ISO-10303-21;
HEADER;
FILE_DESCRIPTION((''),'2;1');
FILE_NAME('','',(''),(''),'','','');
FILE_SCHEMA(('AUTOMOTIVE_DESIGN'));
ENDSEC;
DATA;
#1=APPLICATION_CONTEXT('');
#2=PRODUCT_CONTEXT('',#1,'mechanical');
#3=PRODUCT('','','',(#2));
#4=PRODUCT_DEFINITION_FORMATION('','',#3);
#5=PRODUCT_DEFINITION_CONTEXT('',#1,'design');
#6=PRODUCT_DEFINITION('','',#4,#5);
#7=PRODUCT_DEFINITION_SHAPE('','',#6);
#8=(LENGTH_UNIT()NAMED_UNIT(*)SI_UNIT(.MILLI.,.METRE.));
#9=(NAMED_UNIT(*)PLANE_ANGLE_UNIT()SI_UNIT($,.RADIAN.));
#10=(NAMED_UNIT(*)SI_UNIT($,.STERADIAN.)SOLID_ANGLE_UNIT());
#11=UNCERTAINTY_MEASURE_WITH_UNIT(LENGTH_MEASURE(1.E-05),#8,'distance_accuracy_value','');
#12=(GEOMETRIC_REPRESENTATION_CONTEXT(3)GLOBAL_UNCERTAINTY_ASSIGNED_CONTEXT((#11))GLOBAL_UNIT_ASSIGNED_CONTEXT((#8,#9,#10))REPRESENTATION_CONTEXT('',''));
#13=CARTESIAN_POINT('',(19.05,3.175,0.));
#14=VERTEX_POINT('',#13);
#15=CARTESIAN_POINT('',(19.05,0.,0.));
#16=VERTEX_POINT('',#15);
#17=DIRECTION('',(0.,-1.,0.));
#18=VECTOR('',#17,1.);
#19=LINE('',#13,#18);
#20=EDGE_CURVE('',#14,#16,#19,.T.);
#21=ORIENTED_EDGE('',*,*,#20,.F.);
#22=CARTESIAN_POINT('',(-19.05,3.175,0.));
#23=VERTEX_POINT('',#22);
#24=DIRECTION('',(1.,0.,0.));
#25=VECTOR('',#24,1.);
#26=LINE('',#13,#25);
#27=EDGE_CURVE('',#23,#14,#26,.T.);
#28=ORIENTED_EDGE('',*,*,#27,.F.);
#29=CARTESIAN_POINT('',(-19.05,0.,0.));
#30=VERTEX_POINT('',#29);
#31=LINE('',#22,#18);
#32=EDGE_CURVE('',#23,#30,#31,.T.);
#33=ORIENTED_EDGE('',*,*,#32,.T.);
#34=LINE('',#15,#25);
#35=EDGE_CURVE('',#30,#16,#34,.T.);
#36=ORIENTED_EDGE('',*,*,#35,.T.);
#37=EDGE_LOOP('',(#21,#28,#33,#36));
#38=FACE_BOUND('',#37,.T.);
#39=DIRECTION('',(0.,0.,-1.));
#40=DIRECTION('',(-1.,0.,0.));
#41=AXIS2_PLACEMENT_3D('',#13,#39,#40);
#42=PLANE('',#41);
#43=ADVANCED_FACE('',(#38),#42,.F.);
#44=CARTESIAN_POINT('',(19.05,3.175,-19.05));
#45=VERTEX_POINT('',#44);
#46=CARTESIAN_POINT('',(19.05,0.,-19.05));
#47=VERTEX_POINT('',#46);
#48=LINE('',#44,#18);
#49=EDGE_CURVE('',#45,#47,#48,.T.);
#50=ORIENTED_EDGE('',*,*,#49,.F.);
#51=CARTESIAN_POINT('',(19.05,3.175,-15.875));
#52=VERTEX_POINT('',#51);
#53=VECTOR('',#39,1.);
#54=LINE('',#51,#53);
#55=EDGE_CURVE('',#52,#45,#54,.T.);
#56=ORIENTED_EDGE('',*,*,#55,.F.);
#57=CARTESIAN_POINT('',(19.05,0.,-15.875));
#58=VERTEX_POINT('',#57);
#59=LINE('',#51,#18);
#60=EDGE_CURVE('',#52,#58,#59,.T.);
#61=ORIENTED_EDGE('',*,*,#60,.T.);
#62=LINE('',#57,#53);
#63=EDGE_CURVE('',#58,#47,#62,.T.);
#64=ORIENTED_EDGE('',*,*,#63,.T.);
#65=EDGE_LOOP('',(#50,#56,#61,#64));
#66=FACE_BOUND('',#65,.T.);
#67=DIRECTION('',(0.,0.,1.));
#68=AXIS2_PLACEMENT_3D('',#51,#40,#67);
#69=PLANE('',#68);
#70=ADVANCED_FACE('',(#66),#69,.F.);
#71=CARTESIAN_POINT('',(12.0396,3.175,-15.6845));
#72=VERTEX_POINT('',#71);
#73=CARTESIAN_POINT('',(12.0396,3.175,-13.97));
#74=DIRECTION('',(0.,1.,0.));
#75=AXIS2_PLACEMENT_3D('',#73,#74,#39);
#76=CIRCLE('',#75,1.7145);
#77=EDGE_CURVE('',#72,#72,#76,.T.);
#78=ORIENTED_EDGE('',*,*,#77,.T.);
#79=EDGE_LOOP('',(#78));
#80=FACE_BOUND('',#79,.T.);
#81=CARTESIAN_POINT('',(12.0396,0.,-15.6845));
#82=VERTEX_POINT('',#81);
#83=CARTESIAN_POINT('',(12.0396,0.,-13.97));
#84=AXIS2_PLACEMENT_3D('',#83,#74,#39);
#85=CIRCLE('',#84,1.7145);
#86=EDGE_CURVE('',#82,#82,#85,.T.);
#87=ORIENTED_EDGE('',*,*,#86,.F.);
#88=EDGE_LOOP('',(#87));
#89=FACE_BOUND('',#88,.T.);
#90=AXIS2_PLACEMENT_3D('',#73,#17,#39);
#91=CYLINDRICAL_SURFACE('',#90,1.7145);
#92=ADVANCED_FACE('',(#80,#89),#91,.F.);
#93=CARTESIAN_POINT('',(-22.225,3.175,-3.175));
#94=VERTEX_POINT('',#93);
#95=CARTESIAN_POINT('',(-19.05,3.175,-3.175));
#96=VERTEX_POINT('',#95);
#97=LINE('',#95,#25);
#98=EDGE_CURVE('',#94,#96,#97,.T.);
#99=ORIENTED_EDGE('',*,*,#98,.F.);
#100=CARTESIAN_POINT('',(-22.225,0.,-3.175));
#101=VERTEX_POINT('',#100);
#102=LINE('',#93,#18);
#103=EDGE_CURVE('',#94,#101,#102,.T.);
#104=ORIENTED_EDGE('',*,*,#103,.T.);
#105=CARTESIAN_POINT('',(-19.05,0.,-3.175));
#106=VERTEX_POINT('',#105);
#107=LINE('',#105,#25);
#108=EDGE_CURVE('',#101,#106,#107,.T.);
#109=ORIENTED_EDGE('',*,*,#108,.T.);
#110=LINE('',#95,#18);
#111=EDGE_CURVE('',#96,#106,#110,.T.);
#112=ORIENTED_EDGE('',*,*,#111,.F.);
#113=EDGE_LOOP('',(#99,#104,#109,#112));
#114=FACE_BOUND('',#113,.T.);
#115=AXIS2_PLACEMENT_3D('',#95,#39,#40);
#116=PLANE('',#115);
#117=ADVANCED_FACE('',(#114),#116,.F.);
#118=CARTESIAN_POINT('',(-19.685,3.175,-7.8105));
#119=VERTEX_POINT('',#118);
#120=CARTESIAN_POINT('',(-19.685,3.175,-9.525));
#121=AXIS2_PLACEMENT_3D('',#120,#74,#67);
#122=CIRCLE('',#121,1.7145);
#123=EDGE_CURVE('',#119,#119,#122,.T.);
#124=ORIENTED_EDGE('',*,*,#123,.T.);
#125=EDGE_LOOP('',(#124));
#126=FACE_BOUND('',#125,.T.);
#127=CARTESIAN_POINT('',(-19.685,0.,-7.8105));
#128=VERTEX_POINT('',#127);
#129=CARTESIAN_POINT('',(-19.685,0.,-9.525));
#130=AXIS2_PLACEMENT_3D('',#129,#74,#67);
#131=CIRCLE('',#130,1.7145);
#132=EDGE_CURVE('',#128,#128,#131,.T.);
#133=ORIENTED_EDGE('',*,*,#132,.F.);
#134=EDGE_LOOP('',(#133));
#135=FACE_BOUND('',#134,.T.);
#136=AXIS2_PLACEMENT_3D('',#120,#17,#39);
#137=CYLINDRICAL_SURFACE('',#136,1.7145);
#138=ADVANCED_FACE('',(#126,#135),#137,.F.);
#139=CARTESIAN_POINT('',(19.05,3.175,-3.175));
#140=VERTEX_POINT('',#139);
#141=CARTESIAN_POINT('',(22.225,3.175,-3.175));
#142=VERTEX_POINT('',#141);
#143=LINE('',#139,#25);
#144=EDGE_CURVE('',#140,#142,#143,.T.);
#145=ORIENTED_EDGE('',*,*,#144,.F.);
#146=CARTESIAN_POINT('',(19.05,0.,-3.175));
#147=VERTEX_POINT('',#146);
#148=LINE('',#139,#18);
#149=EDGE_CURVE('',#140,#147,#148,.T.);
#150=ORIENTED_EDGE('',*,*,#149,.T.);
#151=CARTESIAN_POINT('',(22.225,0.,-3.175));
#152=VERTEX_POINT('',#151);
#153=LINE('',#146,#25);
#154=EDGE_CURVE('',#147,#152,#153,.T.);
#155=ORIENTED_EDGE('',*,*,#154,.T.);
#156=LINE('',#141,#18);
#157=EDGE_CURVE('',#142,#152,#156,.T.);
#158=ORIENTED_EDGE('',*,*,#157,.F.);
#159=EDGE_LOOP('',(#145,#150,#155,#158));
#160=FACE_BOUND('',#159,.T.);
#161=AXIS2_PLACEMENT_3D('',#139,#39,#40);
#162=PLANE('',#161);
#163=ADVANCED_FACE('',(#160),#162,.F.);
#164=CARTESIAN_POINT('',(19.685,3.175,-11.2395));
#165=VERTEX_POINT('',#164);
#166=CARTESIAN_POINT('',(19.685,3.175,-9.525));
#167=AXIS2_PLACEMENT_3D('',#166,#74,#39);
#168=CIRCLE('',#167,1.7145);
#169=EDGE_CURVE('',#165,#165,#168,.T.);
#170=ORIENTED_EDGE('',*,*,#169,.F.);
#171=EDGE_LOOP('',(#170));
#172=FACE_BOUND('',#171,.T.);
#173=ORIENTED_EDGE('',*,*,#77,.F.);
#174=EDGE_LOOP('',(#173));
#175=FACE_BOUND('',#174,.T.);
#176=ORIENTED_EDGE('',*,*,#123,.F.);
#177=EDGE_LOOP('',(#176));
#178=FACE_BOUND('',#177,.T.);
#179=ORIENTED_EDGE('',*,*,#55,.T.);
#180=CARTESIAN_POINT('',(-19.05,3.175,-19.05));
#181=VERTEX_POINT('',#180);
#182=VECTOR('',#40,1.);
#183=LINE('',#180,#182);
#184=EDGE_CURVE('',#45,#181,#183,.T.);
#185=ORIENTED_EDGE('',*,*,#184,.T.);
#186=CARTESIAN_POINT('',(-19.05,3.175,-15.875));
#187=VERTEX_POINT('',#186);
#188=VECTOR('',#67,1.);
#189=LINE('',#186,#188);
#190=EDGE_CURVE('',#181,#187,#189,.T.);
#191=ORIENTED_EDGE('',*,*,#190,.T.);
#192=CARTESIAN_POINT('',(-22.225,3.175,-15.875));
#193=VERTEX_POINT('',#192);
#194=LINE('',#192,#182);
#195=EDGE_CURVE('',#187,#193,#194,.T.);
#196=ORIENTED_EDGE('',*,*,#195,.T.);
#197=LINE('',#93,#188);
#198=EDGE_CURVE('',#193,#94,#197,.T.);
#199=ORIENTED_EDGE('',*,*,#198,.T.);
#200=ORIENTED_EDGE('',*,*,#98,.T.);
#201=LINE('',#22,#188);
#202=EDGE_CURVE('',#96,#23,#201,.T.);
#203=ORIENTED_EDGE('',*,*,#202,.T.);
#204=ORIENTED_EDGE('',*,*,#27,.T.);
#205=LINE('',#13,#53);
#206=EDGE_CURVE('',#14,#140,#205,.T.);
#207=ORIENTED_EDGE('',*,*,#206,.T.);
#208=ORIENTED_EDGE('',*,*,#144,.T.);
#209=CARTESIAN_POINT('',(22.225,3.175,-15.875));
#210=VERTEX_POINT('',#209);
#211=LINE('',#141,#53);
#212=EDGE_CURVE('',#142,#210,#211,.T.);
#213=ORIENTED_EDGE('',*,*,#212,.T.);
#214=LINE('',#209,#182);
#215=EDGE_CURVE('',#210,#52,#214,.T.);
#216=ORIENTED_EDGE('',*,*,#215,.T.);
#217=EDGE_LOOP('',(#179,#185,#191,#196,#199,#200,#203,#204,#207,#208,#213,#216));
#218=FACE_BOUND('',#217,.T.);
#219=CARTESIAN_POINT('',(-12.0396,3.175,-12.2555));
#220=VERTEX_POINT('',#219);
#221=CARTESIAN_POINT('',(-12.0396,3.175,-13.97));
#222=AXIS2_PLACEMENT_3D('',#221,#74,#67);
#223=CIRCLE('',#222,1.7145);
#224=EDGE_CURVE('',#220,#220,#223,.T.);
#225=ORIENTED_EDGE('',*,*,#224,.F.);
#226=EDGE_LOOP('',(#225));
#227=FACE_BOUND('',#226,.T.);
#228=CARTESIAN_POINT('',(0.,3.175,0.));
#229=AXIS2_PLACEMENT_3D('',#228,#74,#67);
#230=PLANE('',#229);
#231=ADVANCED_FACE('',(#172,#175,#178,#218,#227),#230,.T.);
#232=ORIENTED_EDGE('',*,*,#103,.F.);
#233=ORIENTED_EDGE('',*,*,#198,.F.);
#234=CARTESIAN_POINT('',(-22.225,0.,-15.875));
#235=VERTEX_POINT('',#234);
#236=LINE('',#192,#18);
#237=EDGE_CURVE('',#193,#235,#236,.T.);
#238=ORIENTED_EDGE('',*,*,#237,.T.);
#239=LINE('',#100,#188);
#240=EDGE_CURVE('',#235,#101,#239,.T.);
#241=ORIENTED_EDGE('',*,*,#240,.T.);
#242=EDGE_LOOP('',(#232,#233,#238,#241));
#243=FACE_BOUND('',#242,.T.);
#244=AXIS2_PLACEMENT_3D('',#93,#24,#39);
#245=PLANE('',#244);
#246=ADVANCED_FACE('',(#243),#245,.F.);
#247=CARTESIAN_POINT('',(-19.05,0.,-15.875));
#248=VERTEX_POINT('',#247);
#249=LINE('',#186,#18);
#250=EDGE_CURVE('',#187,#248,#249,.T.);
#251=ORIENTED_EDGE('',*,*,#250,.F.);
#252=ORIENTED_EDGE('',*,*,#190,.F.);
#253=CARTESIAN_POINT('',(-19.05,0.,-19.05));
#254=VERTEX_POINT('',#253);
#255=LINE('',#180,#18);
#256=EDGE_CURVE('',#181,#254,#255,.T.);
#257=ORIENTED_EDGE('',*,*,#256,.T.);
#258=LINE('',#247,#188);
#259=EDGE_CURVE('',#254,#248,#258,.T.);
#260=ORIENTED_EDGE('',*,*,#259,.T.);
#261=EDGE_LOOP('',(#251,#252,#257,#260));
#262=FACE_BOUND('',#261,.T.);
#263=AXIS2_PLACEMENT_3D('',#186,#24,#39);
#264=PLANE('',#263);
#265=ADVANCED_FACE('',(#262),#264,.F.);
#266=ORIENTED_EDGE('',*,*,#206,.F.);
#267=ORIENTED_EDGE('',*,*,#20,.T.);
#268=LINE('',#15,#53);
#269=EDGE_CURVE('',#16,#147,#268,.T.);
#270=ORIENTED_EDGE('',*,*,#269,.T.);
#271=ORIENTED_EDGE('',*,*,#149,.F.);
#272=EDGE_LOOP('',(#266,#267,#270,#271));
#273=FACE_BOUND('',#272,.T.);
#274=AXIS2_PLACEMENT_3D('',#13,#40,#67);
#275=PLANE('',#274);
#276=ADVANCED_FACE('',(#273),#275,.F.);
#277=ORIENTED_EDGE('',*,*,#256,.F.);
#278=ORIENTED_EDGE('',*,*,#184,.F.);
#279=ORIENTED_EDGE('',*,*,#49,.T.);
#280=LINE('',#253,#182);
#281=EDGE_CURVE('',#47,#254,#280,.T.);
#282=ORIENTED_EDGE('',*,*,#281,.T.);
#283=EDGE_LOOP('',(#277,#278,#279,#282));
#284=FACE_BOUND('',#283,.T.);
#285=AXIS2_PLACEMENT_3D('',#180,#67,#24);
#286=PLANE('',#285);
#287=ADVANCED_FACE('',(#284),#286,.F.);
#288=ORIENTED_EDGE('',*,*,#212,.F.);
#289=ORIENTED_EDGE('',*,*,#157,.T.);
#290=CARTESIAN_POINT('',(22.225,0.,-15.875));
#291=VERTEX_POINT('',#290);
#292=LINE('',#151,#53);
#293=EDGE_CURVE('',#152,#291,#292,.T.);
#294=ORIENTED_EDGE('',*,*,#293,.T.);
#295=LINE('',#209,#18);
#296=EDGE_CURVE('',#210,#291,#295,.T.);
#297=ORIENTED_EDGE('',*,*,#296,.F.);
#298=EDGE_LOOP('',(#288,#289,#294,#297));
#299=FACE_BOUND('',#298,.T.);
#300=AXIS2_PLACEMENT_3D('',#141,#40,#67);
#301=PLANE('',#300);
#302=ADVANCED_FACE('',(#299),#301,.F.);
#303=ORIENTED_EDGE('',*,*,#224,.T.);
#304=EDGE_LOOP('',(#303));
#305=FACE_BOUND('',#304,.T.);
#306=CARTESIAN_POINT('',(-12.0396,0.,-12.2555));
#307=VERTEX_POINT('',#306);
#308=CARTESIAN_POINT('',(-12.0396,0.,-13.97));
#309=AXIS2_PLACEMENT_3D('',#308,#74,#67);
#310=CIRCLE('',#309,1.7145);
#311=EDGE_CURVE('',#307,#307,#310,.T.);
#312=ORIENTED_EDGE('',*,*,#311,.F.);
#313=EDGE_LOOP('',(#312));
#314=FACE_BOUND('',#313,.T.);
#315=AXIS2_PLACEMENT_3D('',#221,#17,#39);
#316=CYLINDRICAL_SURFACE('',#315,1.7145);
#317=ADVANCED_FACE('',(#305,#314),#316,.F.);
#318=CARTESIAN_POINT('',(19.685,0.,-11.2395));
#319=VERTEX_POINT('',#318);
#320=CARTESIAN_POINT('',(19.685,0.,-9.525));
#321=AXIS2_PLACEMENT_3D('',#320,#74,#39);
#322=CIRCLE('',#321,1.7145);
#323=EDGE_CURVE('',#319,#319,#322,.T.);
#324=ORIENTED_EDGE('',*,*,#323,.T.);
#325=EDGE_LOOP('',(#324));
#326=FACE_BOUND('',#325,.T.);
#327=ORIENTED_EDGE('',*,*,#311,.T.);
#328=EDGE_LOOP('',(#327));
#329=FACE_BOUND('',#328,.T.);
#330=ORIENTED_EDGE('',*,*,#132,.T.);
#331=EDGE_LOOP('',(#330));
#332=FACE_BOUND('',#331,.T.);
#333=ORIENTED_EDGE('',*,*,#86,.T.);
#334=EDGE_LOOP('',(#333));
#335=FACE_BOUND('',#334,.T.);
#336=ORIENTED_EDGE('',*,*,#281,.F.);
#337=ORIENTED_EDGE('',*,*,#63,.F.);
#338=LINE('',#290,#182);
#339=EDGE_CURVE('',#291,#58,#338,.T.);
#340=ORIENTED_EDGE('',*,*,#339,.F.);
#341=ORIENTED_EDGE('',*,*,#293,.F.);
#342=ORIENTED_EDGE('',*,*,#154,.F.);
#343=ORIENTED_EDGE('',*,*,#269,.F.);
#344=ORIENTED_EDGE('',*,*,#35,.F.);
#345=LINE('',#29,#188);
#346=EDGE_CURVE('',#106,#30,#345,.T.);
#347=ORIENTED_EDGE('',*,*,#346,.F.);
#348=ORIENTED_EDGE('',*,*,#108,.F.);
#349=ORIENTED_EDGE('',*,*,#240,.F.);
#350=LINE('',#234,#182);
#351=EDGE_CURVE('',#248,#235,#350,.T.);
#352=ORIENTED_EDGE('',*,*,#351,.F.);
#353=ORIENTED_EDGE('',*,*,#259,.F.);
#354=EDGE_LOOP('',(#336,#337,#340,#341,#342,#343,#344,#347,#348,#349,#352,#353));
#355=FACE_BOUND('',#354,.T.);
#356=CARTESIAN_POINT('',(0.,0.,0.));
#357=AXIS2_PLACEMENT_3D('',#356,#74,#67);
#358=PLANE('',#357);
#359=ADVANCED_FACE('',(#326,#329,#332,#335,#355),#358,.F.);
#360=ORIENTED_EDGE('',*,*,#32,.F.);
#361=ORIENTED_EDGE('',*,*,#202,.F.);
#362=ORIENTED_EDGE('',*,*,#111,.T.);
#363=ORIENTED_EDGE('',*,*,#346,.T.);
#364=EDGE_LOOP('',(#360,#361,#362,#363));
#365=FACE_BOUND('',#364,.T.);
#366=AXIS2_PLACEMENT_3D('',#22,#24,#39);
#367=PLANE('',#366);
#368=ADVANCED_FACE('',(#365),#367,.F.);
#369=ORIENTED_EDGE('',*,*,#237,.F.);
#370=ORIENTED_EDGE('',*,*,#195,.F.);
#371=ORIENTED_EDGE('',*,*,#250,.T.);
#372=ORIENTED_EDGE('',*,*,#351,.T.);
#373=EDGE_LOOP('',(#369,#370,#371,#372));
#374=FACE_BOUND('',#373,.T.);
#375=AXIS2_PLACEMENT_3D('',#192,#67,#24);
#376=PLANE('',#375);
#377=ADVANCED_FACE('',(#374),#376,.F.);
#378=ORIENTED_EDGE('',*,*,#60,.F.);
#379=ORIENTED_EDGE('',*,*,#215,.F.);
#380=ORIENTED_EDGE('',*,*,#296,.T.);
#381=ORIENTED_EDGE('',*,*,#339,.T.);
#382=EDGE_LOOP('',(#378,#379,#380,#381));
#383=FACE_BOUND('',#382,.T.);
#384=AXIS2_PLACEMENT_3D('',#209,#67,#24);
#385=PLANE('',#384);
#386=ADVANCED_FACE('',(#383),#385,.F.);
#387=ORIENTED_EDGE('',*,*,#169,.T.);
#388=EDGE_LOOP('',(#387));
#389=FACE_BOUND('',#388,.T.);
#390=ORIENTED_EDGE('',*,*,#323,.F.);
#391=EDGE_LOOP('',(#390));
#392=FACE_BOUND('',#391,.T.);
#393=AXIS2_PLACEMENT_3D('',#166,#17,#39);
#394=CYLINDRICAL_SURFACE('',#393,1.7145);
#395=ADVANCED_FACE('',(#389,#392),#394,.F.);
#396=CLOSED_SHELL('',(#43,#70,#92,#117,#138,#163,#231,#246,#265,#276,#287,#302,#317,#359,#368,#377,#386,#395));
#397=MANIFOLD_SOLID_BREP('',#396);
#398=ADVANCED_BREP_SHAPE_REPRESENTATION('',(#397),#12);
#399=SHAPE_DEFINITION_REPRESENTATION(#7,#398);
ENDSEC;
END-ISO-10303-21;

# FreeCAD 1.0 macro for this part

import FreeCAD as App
import Part
import Sketcher

V = App.Vector
Q = App.Units.Quantity


def add_polygon(sketch, points):
    """Adds a closed chain of lines whose ends are joined by coincident constraints."""
    first, n = sketch.GeometryCount, len(points)
    for a, b in zip(points, points[1:] + points[:1]):
        sketch.addGeometry(Part.LineSegment(App.Vector(*a, 0), App.Vector(*b, 0)), False)
    for i in range(n):
        sketch.addConstraint(Sketcher.Constraint("Coincident", first + i, 2, first + (i + 1) % n, 1))

doc = App.newDocument("Part")
params = doc.addObject("Spreadsheet::Sheet", "Params")
for row, (alias, value) in enumerate([
    ("sketch1_diameter", "0.135 in"),
    ("sketch1_width", "1.5 in"),
    ("sketch1_height", "0.5 in"),
    ("sketch1_width2", "0.125 in"),
    ("pad1_length", "0.125 in"),
], start=1):
    params.set(f"A{row}", alias)
    params.set(f"B{row}", "=" + value)
    params.setAlias(f"B{row}", alias)

body = doc.addObject("PartDesign::Body", "Body")

# Sketch on XZ plane
sketch1 = body.newObject("Sketcher::SketchObject", "Sketch")
sketch1.AttachmentSupport = (doc.getObject("XZ_Plane"), [""])
sketch1.MapMode = "FlatFace"
add_polygon(sketch1, [(-19.1, 0), (19.1, 0), (19.1, -3.2), (22.2, -3.2), (22.2, -15.9), (19.1, -15.9), (19.1, -19.1), (-19.1, -19.1), (-19.1, -15.9), (-22.2, -15.9), (-22.2, -3.2), (-19.1, -3.2)])  # lines 0-11
sketch1.addGeometry(Part.Circle(V(19.7, -9.5, 0), V(0, 0, 1), 1.7), False)  # 12
sketch1.addGeometry(Part.Circle(V(-19.7, -9.5, 0), V(0, 0, 1), 1.7), False)  # 13
sketch1.addGeometry(Part.Circle(V(12, -14, 0), V(0, 0, 1), 1.7), False)  # 14
sketch1.addGeometry(Part.Circle(V(-12, -14, 0), V(0, 0, 1), 1.7), False)  # 15
sketch1.addConstraint([
    Sketcher.Constraint("Horizontal", 0),
    Sketcher.Constraint("Vertical", 1),
    Sketcher.Constraint("Horizontal", 2),
    Sketcher.Constraint("Vertical", 3),
    Sketcher.Constraint("Horizontal", 4),
    Sketcher.Constraint("Vertical", 5),
    Sketcher.Constraint("Horizontal", 6),
    Sketcher.Constraint("Vertical", 7),
    Sketcher.Constraint("Horizontal", 8),
    Sketcher.Constraint("Vertical", 9),
    Sketcher.Constraint("Horizontal", 10),
    Sketcher.Constraint("Vertical", 11),
    Sketcher.Constraint("Equal", 12, 13),
    Sketcher.Constraint("Equal", 13, 14),
    Sketcher.Constraint("Equal", 14, 15),
    Sketcher.Constraint("Symmetric", 0, 2, 11, 2, -1, 1),
    Sketcher.Constraint("Symmetric", 12, 3, 13, 3, -2),
    Sketcher.Constraint("Symmetric", 14, 3, 15, 3, -2),
    Sketcher.Constraint("Symmetric", 4, 2, 7, 2, -2),
    Sketcher.Constraint("Symmetric", 2, 2, 9, 2, -2),
    Sketcher.Constraint("Vertical", 1, 2, 4, 2),
    Sketcher.Constraint("Equal", 10, 1),
    Sketcher.Constraint("Equal", 1, 5),
    Sketcher.Constraint("Diameter", 12, Q("0.135 in")),
    Sketcher.Constraint("DistanceX", 0, 1, 0, 2, Q("1.5 in")),
    Sketcher.Constraint("DistanceY", 3, 2, 3, 1, Q("0.5 in")),
    Sketcher.Constraint("DistanceX", 12, 3, 2, 2, Q("0.1 in")),
    Sketcher.Constraint("DistanceY", 5, 2, 14, 3, Q("0.2 in")),
    Sketcher.Constraint("DistanceX", 2, 1, 2, 2, Q("0.125 in")),
    Sketcher.Constraint("DistanceY", 12, 3, 1, 2, Q("0.25 in")),
    Sketcher.Constraint("DistanceX", -1, 1, 14, 3, Q("0.474 in")),
])
sketch1.setExpression("Constraints[35]", "Params.sketch1_diameter")
sketch1.setExpression("Constraints[36]", "Params.sketch1_width")
sketch1.setExpression("Constraints[37]", "Params.sketch1_height")
sketch1.setExpression("Constraints[40]", "Params.sketch1_width2")
pad1 = body.newObject("PartDesign::Pad", "Pad")
pad1.Profile = sketch1
pad1.setExpression("Length", "Params.pad1_length")
pad1.Reversed = True

doc.recompute()
